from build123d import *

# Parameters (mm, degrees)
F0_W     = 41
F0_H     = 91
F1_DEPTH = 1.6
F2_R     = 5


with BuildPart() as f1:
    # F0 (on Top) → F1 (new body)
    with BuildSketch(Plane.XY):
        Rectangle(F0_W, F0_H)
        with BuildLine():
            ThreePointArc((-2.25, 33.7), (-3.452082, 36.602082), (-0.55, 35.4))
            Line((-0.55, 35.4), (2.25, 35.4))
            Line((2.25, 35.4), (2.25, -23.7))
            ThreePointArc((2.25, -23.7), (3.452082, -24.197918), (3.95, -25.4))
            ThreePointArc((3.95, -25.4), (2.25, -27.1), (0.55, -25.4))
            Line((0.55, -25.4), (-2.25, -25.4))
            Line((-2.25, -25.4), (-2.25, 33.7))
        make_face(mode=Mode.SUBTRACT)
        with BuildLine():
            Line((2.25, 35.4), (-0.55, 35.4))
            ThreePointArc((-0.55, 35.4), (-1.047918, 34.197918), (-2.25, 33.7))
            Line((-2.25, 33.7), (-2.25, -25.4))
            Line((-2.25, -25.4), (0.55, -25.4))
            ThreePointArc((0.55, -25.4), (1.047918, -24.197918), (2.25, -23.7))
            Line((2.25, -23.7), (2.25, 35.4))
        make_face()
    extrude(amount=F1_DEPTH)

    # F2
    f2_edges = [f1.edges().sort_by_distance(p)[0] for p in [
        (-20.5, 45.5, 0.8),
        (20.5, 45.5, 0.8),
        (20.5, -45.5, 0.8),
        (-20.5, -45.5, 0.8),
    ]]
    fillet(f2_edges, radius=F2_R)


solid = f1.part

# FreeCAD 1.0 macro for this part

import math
import FreeCAD as App
import Part
import Sketcher


def edges_at(feature, points):
    """Names of the edges that pass closest to the given points."""
    edges = feature.Shape.Edges
    near = lambda p: min(range(len(edges)), key=lambda i: edges[i].distToShape(Part.Vertex(*p))[0])
    return sorted({f"Edge{near(p) + 1}" for p in points})


def add_polygon(sketch, points):
    """Adds a closed chain of lines whose ends are joined by coincident constraints."""
    first, n = sketch.GeometryCount, len(points)
    for a, b in zip(points, points[1:] + points[:1]):
        sketch.addGeometry(Part.LineSegment(App.Vector(*a, 0), App.Vector(*b, 0)), False)
    for i in range(n):
        sketch.addConstraint(Sketcher.Constraint("Coincident", first + i, 2, first + (i + 1) % n, 1))

doc = App.newDocument("Part")
params = doc.addObject("Spreadsheet::Sheet", "Params")
for row, (alias, value) in enumerate([
    ("sketch1_radius", "1.7 mm"),
    ("sketch1_width", "41 mm"),
    ("sketch1_height", "91 mm"),
    ("pad1_length", "1.6 mm"),
    ("fillet_radius", "5 mm"),
], start=1):
    params.set(f"A{row}", alias)
    params.set(f"B{row}", "=" + value)
    params.setAlias(f"B{row}", alias)

body = doc.addObject("PartDesign::Body", "Body")

# Sketch on XY plane
sketch1 = body.newObject("Sketcher::SketchObject", "Sketch")
sketch1.AttachmentSupport = (doc.getObject("XY_Plane"), [""])
sketch1.MapMode = "FlatFace"
add_polygon(sketch1, [(-20.5, 45.5), (-20.5, -45.5), (20.5, -45.5), (20.5, 45.5)])  # lines 0-3
sketch1.addGeometry(Part.ArcOfCircle(Part.Circle(App.Vector(2.2, -25.4, 0), App.Vector(0, 0, 1), 1.7), math.radians(180), math.radians(360)), False)  # 4
sketch1.addGeometry(Part.ArcOfCircle(Part.Circle(App.Vector(2.2, -25.4, 0), App.Vector(0, 0, 1), 1.7), math.radians(90), math.radians(180)), False)  # 5
sketch1.addGeometry(Part.ArcOfCircle(Part.Circle(App.Vector(2.3, -25.4, 0), App.Vector(0, 0, 1), 1.7), math.radians(0), math.radians(90)), False)  # 6
sketch1.addGeometry(Part.ArcOfCircle(Part.Circle(App.Vector(-2.3, 35.4, 0), App.Vector(0, 0, 1), 1.7), math.radians(0), math.radians(270)), False)  # 7
sketch1.addGeometry(Part.ArcOfCircle(Part.Circle(App.Vector(-2.2, 35.4, 0), App.Vector(0, 0, 1), 1.7), math.radians(-90), math.radians(0)), False)  # 8
sketch1.addConstraint([
    Sketcher.Constraint("Tangent", 4, 1, 5, 2),
    Sketcher.Constraint("Tangent", 5, 1, 6, 2),
    Sketcher.Constraint("Tangent", 6, 1, 4, 2),
    Sketcher.Constraint("Tangent", 7, 1, 8, 2),
    Sketcher.Constraint("Coincident", 8, 1, 7, 2),
    Sketcher.Constraint("Vertical", 0),
    Sketcher.Constraint("Horizontal", 1),
    Sketcher.Constraint("Vertical", 2),
    Sketcher.Constraint("Horizontal", 3),
    Sketcher.Constraint("Equal", 6, 7),
    Sketcher.Constraint("Symmetric", 0, 2, 2, 2, -1, 1),
    Sketcher.Constraint("Horizontal", 6, 3, 4, 1),
    Sketcher.Constraint("Horizontal", 4, 1, 6, 1),
    Sketcher.Constraint("Horizontal", 8, 3, 7, 1),
    Sketcher.Constraint("Vertical", 6, 3, 5, 1),
    Sketcher.Constraint("Vertical", 7, 3, 8, 1),
    Sketcher.Constraint("Radius", 4, 1.7),
    Sketcher.Constraint("DistanceX", 1, 1, 1, 2, 41.0),
    Sketcher.Constraint("DistanceY", 0, 2, 0, 1, 91.0),
    Sketcher.Constraint("DistanceY", 4, 3, -1, 1, 25.4),
    Sketcher.Constraint("DistanceY", -1, 1, 7, 3, 35.4),
    Sketcher.Constraint("DistanceX", 7, 3, 5, 3, 4.499999),
    Sketcher.Constraint("DistanceX", -1, 1, 4, 3, 2.25),
])
sketch1.setExpression("Constraints[20]", "Params.sketch1_radius")
sketch1.setExpression("Constraints[21]", "Params.sketch1_width")
sketch1.setExpression("Constraints[22]", "Params.sketch1_height")
pad1 = body.newObject("PartDesign::Pad", "Pad")
pad1.Profile = sketch1
pad1.setExpression("Length", "Params.pad1_length")
doc.recompute()

fillet = body.newObject("PartDesign::Fillet", "Fillet")
fillet.Base = (pad1, edges_at(pad1, [
    (-20.5, 45.5, 0.8),
    (20.5, 45.5, 0.8),
    (20.5, -45.5, 0.8),
    (-20.5, -45.5, 0.8),
]))
fillet.setExpression("Radius", "Params.fillet_radius")

doc.recompute()
